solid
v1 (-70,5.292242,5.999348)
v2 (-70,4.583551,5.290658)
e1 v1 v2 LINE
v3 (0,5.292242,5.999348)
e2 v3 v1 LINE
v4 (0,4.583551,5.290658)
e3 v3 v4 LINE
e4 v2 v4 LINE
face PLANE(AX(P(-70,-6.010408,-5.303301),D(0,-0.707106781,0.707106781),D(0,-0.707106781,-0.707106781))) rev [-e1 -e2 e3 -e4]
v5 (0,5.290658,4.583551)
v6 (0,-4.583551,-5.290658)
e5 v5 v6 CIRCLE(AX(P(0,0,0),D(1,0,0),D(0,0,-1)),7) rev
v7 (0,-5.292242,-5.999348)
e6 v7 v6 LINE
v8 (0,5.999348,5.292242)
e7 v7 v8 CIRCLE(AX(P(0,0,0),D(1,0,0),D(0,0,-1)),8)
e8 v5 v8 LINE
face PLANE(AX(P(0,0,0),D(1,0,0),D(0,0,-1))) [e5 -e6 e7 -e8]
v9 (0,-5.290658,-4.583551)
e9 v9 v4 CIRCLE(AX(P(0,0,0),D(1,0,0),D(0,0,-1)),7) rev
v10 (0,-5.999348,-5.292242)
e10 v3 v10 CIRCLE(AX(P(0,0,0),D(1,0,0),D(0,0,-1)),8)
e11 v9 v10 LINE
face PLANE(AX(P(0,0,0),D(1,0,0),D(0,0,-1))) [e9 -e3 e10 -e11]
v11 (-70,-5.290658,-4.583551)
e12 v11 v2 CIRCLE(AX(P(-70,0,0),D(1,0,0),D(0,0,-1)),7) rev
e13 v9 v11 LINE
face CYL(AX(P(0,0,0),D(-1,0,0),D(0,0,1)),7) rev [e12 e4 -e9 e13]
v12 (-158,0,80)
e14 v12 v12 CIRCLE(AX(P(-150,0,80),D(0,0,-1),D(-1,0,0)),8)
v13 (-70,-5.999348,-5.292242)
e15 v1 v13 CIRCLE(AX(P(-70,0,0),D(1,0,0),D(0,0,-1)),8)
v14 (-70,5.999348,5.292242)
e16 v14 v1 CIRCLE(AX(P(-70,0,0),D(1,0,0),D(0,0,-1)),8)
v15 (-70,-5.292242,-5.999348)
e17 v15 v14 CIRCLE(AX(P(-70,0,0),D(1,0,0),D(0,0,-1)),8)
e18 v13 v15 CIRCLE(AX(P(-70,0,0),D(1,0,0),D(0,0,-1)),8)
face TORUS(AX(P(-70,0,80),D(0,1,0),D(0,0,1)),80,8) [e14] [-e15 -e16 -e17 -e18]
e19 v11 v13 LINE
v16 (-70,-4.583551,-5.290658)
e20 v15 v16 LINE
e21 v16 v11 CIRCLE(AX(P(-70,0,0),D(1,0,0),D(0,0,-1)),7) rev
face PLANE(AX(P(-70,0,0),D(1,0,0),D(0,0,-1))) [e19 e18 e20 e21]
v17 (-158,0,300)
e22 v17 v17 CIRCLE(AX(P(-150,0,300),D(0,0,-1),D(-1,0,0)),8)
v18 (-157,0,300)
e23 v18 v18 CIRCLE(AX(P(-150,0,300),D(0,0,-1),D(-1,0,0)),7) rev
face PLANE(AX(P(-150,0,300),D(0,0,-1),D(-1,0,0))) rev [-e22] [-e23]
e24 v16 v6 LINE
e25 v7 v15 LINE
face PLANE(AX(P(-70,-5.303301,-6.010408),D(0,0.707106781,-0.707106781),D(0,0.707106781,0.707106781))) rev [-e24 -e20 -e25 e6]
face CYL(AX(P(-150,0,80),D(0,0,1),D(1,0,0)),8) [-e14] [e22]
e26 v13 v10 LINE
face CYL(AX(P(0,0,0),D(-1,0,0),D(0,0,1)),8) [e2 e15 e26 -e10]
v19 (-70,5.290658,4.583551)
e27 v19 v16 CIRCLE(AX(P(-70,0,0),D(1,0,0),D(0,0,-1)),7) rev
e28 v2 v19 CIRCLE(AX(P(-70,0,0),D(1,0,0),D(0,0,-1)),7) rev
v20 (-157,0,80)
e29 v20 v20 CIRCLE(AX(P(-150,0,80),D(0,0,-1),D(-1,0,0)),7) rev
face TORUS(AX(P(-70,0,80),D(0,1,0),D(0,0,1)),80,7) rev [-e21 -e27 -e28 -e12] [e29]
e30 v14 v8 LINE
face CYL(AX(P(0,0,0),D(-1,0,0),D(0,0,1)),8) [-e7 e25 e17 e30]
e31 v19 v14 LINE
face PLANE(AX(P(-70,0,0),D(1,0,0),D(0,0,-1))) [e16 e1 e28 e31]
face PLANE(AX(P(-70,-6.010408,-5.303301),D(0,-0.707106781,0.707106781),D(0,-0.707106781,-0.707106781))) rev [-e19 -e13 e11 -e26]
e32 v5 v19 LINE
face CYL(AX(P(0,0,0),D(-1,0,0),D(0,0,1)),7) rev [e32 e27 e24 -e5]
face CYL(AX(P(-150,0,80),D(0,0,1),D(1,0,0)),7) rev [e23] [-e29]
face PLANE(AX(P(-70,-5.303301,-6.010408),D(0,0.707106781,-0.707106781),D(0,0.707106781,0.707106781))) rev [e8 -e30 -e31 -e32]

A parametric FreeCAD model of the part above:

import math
import FreeCAD as App
import Part
import Sketcher
Q = App.Units.Quantity


def add_polygon(sketch, points):
    """Adds a closed chain of lines whose ends are joined by coincident constraints."""
    first, n = sketch.GeometryCount, len(points)
    for a, b in zip(points, points[1:] + points[:1]):
        sketch.addGeometry(Part.LineSegment(App.Vector(*a, 0), App.Vector(*b, 0)), False)
    for i in range(n):
        sketch.addConstraint(Sketcher.Constraint("Coincident", first + i, 2, first + (i + 1) % n, 1))

doc = App.newDocument("Part")
params = doc.addObject("Spreadsheet::Sheet", "Params")
for row, (alias, value) in enumerate([
    ("sketch1_diameter", "16 mm"),
    ("sketch1_diameter2", "14 mm"),
    ("sketch2_radius", "80 mm"),
    ("sketch2_width", "70 mm"),
    ("sketch2_height", "220 mm"),
    ("sketch3_length", "16 mm"),
    ("sketch3_length2", "1 mm"),
    ("pocket1_length", "70 mm"),
], start=1):
    params.set(f"A{row}", alias)
    params.set(f"B{row}", "=" + value)
    params.setAlias(f"B{row}", alias)

body = doc.addObject("PartDesign::Body", "Body")

sketch1 = body.newObject("Sketcher::SketchObject", "Sketch")
sketch1.AttachmentSupport = (doc.getObject("YZ_Plane"), [""])
sketch1.MapMode = "FlatFace"
sketch1.addGeometry(Part.Circle(App.Vector(0, 0, 0), App.Vector(0, 0, 1), 8), False)
sketch1.addGeometry(Part.Circle(App.Vector(0, 0, 0), App.Vector(0, 0, 1), 7), False)
sketch1.addConstraint(Sketcher.Constraint("Coincident", 0, 3, -1, 1))
sketch1.addConstraint(Sketcher.Constraint("Coincident", 1, 3, -1, 1))
sketch1.addConstraint(Sketcher.Constraint("Diameter", 0, 16.0))
sketch1.addConstraint(Sketcher.Constraint("Diameter", 1, 14.0))
sketch1.setExpression("Constraints[2]", "Params.sketch1_diameter")
sketch1.setExpression("Constraints[3]", "Params.sketch1_diameter2")

sketch2 = body.newObject("Sketcher::SketchObject", "Sketch001")
sketch2.AttachmentSupport = (doc.getObject("XZ_Plane"), [""])
sketch2.MapMode = "FlatFace"
sketch2.addGeometry(Part.LineSegment(App.Vector(-150, 300, 0), App.Vector(-150, 80, 0)), False)
sketch2.addGeometry(Part.ArcOfCircle(Part.Circle(App.Vector(-70, 80, 0), App.Vector(0, 0, 1), 80), math.radians(180), math.radians(270)), False)
sketch2.addGeometry(Part.LineSegment(App.Vector(-70, 0, 0), App.Vector(0, 0, 0)), False)
sketch2.addConstraint(Sketcher.Constraint("Tangent", 0, 2, 1, 1))
sketch2.addConstraint(Sketcher.Constraint("Tangent", 1, 2, 2, 1))
sketch2.addConstraint(Sketcher.Constraint("Vertical", 0))
sketch2.addConstraint(Sketcher.Constraint("Horizontal", 2))
sketch2.addConstraint(Sketcher.Constraint("Coincident", 2, 2, -1, 1))
sketch2.addConstraint(Sketcher.Constraint("Radius", 1, 80.0))
sketch2.addConstraint(Sketcher.Constraint("DistanceX", 2, 1, 2, 2, 70.0))
sketch2.addConstraint(Sketcher.Constraint("DistanceY", 0, 2, 0, 1, 220.0))
sketch2.setExpression("Constraints[5]", "Params.sketch2_radius")
sketch2.setExpression("Constraints[6]", "Params.sketch2_width")
sketch2.setExpression("Constraints[7]", "Params.sketch2_height")
doc.recompute()

additivepipe = body.newObject("PartDesign::AdditivePipe", "AdditivePipe")
additivepipe.Profile = sketch1
additivepipe.Spine = (sketch2, ["Edge1", "Edge2", "Edge3"])

sketch3 = body.newObject("Sketcher::SketchObject", "Sketch002")
sketch3.AttachmentSupport = (doc.getObject("YZ_Plane"), [""])
sketch3.MapMode = "FlatFace"
add_polygon(sketch3, [(5.3, 6), (-6, -5.3), (-5.3, -6), (6, 5.3)])
sketch3.addConstraint(Sketcher.Constraint("Symmetric", 0, 2, 2, 2, -1, 1))
sketch3.addConstraint(Sketcher.Constraint("Symmetric", 1, 2, 3, 2, -1, 1))
sketch3.addConstraint(Sketcher.Constraint("Perpendicular", 0, 1))
sketch3.addConstraint(Sketcher.Constraint("Angle", 0, Q("-135 deg")))
sketch3.addConstraint(Sketcher.Constraint("Distance", 0, 16.0))
sketch3.addConstraint(Sketcher.Constraint("Distance", 1, 1.0))
sketch3.setExpression("Constraints[8]", "Params.sketch3_length")
sketch3.setExpression("Constraints[9]", "Params.sketch3_length2")
pocket1 = body.newObject("PartDesign::Pocket", "Pocket")
pocket1.Profile = sketch3
pocket1.setExpression("Length", "Params.pocket1_length")

doc.recompute()
